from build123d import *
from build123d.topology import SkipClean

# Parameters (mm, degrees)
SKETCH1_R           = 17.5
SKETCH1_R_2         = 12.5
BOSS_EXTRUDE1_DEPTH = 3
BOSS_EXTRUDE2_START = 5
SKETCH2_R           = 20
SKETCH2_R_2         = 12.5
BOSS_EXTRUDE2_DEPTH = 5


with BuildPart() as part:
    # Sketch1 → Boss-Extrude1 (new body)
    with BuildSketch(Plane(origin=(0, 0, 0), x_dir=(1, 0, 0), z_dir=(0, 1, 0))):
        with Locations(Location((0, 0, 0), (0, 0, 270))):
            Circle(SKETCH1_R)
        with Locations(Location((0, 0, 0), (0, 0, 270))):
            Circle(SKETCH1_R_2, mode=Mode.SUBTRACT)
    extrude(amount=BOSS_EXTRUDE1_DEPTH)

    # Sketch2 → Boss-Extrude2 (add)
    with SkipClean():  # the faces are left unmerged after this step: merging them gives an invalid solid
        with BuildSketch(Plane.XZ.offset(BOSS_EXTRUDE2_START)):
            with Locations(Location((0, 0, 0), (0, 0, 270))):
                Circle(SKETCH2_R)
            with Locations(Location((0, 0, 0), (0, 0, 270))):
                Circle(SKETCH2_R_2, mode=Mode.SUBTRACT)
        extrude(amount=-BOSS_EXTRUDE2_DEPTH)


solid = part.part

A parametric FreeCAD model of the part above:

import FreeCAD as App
import Part
import Sketcher
from FreeCAD import Vector

doc = App.newDocument("Part")
body = doc.addObject("PartDesign::Body", "Body")

sketch1 = body.newObject("Sketcher::SketchObject", "Sketch")
sketch1.AttachmentSupport = (doc.getObject("XZ_Plane"), [""])
sketch1.MapMode = "FlatFace"
sketch1.addGeometry(Part.Circle(Vector(0, 0, 0), Vector(0, 0, 1), 18), False)
sketch1.addGeometry(Part.Circle(Vector(0, 0, 0), Vector(0, 0, 1), 12), False)
sketch1.addConstraint(Sketcher.Constraint("Coincident", 0, 3, -1, 1))
sketch1.addConstraint(Sketcher.Constraint("Coincident", 1, 3, -1, 1))
sketch1.addConstraint(Sketcher.Constraint("Diameter", 0, 35.0))
sketch1.addConstraint(Sketcher.Constraint("Diameter", 1, 25.0))
pad1 = body.newObject("PartDesign::Pad", "Pad")
pad1.Profile = sketch1
pad1.Length = 3
pad1.Reversed = True

sketch2 = body.newObject("Sketcher::SketchObject", "Sketch001")
sketch2.AttachmentSupport = (doc.getObject("XZ_Plane"), [""])
sketch2.MapMode = "FlatFace"
sketch2.AttachmentOffset = App.Placement(Vector(0, 0, 5), App.Rotation())
sketch2.addGeometry(Part.Circle(Vector(0, 0, 0), Vector(0, 0, 1), 20), False)
sketch2.addGeometry(Part.Circle(Vector(0, 0, 0), Vector(0, 0, 1), 12), False)
sketch2.addConstraint(Sketcher.Constraint("Coincident", 0, 3, -1, 1))
sketch2.addConstraint(Sketcher.Constraint("Coincident", 1, 3, -1, 1))
sketch2.addConstraint(Sketcher.Constraint("Diameter", 0, 40.0))
sketch2.addConstraint(Sketcher.Constraint("Diameter", 1, 25.0))
pad2 = body.newObject("PartDesign::Pad", "Pad001")
pad2.Profile = sketch2
pad2.Length = 5
pad2.Reversed = True

doc.recompute()
